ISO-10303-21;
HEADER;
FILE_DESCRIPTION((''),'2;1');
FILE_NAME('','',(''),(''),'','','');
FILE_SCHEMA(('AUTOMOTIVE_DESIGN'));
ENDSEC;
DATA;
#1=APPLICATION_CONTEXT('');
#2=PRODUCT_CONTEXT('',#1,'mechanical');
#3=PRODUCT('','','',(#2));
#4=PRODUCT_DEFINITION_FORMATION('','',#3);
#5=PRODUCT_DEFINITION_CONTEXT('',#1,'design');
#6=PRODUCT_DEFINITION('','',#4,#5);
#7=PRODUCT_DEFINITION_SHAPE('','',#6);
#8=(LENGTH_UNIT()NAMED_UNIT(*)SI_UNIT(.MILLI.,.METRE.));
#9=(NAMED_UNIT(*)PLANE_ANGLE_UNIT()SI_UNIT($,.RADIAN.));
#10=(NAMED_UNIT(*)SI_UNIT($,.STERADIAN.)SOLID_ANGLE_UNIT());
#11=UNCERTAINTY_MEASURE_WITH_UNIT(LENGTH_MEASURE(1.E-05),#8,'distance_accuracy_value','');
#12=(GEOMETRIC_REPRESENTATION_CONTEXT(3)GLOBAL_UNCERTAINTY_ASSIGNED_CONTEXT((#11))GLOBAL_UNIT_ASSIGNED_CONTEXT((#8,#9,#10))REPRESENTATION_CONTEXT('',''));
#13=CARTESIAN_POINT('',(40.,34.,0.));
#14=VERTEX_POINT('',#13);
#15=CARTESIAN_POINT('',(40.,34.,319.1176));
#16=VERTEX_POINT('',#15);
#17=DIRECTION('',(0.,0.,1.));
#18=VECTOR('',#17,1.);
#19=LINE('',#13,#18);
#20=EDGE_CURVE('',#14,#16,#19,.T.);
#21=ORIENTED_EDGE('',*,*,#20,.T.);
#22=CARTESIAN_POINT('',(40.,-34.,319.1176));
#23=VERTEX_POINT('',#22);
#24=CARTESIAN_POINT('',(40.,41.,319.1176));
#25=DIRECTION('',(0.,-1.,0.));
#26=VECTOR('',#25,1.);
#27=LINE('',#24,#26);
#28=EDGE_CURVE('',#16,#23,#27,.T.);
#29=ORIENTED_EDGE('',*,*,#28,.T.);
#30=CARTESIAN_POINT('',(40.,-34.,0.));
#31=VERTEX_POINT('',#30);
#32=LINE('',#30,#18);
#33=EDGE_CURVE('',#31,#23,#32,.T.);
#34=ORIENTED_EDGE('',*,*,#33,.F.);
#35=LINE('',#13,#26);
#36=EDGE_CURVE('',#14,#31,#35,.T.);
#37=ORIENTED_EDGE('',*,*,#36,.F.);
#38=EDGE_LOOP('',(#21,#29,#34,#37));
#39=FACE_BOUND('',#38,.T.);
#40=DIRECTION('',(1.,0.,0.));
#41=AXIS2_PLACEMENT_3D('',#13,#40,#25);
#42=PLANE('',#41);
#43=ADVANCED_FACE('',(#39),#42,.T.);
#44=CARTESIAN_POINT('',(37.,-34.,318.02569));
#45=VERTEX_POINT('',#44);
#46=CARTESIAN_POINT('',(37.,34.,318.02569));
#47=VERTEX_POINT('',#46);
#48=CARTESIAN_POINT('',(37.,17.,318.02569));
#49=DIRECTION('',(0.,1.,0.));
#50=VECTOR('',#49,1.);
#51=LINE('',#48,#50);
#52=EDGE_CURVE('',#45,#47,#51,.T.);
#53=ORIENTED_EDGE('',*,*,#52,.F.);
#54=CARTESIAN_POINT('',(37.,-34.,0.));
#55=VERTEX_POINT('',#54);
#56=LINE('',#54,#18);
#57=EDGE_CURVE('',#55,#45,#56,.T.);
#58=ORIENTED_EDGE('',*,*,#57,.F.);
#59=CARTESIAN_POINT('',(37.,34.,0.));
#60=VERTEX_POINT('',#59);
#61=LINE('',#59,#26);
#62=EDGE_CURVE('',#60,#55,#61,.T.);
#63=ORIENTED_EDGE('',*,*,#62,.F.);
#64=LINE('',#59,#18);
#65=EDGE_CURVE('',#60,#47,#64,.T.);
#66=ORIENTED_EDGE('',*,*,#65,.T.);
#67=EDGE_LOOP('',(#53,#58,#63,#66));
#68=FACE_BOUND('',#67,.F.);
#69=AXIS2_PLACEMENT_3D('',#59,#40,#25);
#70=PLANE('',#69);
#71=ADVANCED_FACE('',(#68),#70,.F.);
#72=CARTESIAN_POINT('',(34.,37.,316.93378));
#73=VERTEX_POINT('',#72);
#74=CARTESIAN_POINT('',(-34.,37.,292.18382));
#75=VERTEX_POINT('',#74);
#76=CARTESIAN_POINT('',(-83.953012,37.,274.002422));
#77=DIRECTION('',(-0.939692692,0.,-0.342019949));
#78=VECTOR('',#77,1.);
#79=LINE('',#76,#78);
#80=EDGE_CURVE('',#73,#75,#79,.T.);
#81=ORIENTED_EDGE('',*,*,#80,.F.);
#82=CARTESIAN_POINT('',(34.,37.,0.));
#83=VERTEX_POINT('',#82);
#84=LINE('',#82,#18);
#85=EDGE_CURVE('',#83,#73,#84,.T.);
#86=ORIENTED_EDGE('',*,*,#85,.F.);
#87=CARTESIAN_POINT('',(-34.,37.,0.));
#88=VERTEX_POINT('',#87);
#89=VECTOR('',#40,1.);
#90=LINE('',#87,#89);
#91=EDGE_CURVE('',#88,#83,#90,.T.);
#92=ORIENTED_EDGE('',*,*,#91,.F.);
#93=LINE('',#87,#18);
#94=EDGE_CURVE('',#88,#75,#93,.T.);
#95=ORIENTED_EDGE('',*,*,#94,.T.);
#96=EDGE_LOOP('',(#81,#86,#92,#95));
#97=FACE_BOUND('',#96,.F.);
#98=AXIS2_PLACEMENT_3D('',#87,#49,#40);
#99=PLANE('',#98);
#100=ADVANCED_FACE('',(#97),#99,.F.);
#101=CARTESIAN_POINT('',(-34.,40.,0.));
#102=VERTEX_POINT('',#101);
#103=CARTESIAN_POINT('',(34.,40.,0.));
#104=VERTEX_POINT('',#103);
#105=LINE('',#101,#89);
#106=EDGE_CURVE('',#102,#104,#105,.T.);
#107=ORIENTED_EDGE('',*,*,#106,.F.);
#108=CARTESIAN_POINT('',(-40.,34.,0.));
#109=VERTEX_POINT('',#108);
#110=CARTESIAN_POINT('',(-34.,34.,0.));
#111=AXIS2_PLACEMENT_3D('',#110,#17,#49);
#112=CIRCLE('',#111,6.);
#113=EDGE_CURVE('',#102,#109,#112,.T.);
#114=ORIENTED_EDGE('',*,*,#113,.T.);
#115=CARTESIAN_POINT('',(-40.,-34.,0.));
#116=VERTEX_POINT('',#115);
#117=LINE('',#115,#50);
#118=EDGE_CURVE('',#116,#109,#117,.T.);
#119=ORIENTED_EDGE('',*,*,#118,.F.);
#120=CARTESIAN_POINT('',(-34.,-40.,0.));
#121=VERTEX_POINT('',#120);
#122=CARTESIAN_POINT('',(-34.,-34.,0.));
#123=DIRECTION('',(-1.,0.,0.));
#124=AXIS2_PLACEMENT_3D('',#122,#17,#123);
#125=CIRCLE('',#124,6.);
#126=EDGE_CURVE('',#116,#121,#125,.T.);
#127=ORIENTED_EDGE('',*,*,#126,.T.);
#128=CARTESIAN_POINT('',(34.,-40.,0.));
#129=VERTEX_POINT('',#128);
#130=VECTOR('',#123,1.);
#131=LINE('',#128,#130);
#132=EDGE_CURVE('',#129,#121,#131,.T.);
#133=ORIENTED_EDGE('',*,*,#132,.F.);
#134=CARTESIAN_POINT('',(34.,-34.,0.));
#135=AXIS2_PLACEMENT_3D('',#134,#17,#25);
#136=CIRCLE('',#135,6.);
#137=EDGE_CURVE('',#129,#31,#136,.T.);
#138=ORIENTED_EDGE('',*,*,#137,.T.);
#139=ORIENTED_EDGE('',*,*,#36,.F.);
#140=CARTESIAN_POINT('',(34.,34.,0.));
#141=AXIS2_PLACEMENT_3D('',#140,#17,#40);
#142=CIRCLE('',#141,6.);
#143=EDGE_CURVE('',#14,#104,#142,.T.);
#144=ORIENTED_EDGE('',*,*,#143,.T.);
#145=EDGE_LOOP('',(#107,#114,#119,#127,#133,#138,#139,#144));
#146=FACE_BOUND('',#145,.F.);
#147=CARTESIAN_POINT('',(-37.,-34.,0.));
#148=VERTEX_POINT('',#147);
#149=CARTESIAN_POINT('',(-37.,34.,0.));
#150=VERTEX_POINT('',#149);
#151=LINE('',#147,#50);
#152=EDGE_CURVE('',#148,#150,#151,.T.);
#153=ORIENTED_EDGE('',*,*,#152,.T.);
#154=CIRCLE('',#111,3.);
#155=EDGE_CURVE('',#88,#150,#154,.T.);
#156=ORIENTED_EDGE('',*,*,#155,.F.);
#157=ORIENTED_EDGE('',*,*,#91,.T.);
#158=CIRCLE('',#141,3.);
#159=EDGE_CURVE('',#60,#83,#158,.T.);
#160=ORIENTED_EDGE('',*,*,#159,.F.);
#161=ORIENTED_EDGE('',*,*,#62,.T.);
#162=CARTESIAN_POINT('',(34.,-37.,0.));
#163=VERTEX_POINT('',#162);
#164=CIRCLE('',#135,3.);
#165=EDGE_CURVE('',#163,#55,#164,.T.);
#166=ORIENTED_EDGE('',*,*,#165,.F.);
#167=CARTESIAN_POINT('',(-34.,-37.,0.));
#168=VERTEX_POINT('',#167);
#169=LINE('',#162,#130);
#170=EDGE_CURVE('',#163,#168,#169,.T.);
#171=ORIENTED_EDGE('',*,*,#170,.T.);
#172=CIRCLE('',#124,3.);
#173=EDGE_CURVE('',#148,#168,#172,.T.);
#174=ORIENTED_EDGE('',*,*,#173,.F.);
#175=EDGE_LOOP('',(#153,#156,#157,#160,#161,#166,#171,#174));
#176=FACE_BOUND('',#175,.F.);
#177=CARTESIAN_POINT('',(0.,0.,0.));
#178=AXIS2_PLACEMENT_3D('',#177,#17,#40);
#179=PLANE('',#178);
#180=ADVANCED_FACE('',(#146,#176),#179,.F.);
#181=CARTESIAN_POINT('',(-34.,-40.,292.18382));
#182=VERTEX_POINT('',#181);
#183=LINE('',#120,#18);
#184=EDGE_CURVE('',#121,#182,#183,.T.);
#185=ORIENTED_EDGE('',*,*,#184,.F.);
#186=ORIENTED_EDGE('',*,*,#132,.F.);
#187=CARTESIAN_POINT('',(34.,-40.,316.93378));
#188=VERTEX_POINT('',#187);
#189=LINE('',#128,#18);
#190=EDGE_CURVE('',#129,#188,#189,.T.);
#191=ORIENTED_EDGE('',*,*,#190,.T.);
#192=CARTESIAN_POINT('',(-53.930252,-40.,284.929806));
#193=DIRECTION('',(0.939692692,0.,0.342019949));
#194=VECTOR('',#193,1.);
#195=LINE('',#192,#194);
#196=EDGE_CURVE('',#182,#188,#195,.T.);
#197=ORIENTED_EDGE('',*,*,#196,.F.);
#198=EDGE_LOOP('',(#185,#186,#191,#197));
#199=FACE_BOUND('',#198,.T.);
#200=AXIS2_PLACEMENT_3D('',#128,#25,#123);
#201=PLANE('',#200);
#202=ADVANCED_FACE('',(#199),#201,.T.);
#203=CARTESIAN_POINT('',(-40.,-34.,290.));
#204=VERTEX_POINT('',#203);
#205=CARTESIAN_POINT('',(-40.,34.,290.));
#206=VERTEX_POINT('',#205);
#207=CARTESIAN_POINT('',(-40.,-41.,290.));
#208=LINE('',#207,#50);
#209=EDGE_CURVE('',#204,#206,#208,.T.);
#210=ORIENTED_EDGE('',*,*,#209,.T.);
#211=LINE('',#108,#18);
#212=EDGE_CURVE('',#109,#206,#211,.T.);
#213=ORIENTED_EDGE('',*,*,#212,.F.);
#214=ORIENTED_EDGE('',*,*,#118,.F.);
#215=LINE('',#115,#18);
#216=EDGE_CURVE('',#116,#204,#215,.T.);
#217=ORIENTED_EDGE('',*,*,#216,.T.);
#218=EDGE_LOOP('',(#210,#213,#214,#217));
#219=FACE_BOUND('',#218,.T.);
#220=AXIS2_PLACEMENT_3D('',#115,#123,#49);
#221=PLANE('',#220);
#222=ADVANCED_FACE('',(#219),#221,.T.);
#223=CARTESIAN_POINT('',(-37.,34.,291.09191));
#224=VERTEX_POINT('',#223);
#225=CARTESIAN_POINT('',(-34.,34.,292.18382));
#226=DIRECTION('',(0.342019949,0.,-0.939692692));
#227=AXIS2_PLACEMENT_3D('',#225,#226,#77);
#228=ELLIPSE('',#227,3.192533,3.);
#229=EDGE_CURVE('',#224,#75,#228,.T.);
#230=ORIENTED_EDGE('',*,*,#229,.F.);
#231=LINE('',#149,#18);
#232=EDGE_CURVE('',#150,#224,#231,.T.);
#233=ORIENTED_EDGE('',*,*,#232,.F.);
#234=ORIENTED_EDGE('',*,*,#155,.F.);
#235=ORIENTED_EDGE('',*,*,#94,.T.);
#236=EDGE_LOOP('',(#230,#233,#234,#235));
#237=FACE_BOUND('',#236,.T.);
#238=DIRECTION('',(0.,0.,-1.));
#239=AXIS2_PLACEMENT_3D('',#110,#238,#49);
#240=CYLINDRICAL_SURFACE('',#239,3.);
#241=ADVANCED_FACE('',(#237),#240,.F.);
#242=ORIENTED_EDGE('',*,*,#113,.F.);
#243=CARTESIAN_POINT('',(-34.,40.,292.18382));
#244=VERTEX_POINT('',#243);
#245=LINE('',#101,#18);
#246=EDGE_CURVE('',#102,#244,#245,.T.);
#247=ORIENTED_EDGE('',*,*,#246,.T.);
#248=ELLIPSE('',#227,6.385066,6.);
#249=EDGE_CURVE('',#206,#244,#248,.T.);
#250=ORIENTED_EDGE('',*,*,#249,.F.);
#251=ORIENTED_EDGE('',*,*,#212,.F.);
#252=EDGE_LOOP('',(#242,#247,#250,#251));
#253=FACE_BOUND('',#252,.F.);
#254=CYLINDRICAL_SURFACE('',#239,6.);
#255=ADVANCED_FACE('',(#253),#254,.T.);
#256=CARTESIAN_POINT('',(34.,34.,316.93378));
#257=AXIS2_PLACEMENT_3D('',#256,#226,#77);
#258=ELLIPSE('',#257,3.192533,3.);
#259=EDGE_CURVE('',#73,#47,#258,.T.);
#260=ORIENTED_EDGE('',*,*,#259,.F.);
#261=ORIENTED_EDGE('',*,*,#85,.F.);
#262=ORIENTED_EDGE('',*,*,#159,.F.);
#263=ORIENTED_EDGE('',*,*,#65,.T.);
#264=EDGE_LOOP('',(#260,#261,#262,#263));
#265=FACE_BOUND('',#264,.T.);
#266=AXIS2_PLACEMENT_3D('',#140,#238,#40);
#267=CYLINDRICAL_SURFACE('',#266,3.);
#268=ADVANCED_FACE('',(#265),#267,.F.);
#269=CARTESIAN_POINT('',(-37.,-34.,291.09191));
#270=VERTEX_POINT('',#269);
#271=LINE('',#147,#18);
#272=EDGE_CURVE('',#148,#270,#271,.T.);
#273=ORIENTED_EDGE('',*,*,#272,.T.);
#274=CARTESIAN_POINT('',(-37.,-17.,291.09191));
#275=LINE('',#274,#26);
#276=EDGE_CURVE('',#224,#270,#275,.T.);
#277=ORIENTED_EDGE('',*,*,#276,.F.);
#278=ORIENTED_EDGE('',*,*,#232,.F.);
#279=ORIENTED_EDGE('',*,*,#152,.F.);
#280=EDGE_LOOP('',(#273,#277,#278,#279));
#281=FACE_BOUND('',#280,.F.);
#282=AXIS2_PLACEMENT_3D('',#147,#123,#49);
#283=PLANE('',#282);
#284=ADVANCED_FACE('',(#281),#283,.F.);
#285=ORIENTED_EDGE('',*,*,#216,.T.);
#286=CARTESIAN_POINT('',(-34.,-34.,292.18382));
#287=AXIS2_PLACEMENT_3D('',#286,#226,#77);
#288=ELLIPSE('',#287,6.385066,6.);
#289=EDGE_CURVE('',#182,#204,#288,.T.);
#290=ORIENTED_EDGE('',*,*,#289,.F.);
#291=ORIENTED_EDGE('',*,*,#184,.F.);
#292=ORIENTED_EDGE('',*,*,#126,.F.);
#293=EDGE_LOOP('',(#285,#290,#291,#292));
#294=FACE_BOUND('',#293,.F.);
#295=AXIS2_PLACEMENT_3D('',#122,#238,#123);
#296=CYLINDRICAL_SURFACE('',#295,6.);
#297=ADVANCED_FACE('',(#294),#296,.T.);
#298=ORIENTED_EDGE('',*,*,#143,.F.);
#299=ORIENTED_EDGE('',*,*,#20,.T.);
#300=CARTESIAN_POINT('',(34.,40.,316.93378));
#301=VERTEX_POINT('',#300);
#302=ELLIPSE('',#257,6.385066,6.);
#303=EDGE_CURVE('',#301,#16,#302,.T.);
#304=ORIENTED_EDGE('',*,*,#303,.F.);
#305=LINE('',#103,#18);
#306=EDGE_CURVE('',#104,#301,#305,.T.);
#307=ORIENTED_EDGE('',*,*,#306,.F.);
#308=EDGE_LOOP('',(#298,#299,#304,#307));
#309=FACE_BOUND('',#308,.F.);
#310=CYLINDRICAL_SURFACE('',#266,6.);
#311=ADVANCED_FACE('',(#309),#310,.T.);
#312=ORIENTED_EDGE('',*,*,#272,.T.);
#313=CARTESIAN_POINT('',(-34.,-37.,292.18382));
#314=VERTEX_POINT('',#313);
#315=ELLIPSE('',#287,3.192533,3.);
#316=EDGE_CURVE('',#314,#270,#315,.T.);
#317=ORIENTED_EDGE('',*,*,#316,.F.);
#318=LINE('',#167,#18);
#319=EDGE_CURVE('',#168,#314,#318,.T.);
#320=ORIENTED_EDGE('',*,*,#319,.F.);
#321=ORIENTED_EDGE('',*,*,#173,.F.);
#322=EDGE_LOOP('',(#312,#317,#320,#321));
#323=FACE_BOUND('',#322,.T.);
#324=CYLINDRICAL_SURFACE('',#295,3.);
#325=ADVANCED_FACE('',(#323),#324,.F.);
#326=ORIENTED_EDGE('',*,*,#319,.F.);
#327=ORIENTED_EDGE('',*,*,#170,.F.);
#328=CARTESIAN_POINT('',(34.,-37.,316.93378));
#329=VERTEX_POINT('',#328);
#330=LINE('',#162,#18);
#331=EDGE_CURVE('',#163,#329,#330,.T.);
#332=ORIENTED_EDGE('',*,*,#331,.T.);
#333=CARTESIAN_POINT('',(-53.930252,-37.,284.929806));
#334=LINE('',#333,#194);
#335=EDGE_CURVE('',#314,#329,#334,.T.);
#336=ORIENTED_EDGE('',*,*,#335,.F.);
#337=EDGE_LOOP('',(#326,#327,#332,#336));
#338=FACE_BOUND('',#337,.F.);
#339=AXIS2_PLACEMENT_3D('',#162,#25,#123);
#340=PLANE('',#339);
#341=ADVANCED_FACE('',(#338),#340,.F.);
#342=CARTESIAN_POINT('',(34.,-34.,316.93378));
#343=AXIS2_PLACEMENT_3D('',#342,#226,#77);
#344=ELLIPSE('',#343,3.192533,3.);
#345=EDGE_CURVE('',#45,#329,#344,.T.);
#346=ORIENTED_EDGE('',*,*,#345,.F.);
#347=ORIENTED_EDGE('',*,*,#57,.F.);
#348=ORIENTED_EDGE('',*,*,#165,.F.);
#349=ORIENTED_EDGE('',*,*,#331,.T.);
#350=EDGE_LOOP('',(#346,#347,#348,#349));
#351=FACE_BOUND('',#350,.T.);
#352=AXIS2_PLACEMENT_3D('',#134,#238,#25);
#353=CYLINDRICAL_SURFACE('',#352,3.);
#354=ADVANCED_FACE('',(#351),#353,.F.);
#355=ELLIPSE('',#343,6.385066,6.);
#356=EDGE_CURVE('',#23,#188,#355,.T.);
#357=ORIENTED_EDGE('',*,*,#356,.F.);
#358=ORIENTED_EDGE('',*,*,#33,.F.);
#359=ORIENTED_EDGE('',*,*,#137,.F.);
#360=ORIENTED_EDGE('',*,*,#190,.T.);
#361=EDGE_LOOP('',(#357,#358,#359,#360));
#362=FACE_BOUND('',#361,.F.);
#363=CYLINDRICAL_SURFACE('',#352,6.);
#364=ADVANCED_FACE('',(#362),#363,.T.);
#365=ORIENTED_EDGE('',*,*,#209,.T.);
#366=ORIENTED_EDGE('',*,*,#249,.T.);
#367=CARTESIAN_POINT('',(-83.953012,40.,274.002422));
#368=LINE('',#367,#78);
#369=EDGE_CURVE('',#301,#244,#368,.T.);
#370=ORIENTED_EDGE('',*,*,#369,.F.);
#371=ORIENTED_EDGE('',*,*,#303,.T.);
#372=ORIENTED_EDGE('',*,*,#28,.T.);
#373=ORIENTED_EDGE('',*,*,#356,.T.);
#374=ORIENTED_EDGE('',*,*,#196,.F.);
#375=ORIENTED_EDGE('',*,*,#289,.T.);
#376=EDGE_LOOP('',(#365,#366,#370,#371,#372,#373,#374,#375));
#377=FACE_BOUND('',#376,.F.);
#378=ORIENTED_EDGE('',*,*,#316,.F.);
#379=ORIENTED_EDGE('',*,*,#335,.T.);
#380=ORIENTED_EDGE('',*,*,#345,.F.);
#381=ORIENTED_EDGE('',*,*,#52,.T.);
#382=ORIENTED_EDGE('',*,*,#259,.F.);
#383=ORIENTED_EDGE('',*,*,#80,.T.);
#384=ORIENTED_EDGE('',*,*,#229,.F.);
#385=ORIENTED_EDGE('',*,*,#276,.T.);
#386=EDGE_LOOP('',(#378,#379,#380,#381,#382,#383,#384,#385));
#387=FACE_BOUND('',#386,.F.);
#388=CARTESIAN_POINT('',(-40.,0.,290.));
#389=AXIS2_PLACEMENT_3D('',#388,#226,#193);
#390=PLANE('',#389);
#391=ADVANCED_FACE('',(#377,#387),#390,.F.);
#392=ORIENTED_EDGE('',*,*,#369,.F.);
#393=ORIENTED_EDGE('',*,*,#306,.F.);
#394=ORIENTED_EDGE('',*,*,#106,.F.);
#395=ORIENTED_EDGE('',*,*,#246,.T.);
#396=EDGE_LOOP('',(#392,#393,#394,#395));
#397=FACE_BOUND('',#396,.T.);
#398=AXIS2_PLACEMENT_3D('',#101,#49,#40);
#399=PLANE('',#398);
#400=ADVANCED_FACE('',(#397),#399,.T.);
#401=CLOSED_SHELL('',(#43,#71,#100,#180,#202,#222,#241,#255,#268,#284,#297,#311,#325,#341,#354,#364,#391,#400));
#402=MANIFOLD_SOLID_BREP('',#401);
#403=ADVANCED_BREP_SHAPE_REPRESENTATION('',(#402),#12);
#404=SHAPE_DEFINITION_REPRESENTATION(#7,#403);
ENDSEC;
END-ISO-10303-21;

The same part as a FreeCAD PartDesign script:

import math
import FreeCAD as App
import Part
import Sketcher
from FreeCAD import Vector
Q = App.Units.Quantity


def add_polygon(sketch, points):
    """Adds a closed chain of lines whose ends are joined by coincident constraints."""
    first, n = sketch.GeometryCount, len(points)
    for a, b in zip(points, points[1:] + points[:1]):
        sketch.addGeometry(Part.LineSegment(App.Vector(*a, 0), App.Vector(*b, 0)), False)
    for i in range(n):
        sketch.addConstraint(Sketcher.Constraint("Coincident", first + i, 2, first + (i + 1) % n, 1))

doc = App.newDocument("Part")
params = doc.addObject("Spreadsheet::Sheet", "Params")
for row, (alias, value) in enumerate([
    ("sketch1_radius", "6 mm"),
    ("sketch1_radius2", "3 mm"),
    ("pad1_length", "1000 mm"),
    ("sketch2_width", "80 mm"),
    ("sketch2_height", "710 mm"),
], start=1):
    params.set(f"A{row}", alias)
    params.set(f"B{row}", "=" + value)
    params.setAlias(f"B{row}", alias)

body = doc.addObject("PartDesign::Body", "Body")

sketch1 = doc.addObject("Sketcher::SketchObject", "Sketch")
body.addObject(sketch1)
sketch1.AttachmentSupport = (doc.XY_Plane, [""])
sketch1.MapMode = "FlatFace"
sketch1.addGeometry([
    Part.LineSegment(Vector(-40, 34, 0), Vector(-40, -34, 0)),
    Part.ArcOfCircle(Part.Circle(Vector(-34, -34, 0), Vector(0, 0, 1), 6), math.radians(180), math.radians(270)),
    Part.LineSegment(Vector(-34, -40, 0), Vector(34, -40, 0)),
    Part.ArcOfCircle(Part.Circle(Vector(34, -34, 0), Vector(0, 0, 1), 6), math.radians(-90), math.radians(0)),
    Part.LineSegment(Vector(40, -34, 0), Vector(40, 34, 0)),
    Part.ArcOfCircle(Part.Circle(Vector(34, 34, 0), Vector(0, 0, 1), 6), math.radians(0), math.radians(90)),
    Part.LineSegment(Vector(34, 40, 0), Vector(-34, 40, 0)),
    Part.ArcOfCircle(Part.Circle(Vector(-34, 34, 0), Vector(0, 0, 1), 6), math.radians(90), math.radians(180)),
    Part.ArcOfCircle(Part.Circle(Vector(-34, 34, 0), Vector(0, 0, 1), 3), math.radians(90), math.radians(180)),
    Part.LineSegment(Vector(-34, 37, 0), Vector(34, 37, 0)),
    Part.ArcOfCircle(Part.Circle(Vector(34, 34, 0), Vector(0, 0, 1), 3), math.radians(0), math.radians(90)),
    Part.LineSegment(Vector(37, 34, 0), Vector(37, -34, 0)),
    Part.ArcOfCircle(Part.Circle(Vector(34, -34, 0), Vector(0, 0, 1), 3), math.radians(-90), math.radians(0)),
    Part.LineSegment(Vector(34, -37, 0), Vector(-34, -37, 0)),
    Part.ArcOfCircle(Part.Circle(Vector(-34, -34, 0), Vector(0, 0, 1), 3), math.radians(180), math.radians(270)),
    Part.LineSegment(Vector(-37, -34, 0), Vector(-37, 34, 0)),
], False)
sketch1.addConstraint([
    Sketcher.Constraint("Tangent", 0, 2, 1, 1),
    Sketcher.Constraint("Tangent", 1, 2, 2, 1),
    Sketcher.Constraint("Tangent", 2, 2, 3, 1),
    Sketcher.Constraint("Tangent", 3, 2, 4, 1),
    Sketcher.Constraint("Tangent", 4, 2, 5, 1),
    Sketcher.Constraint("Tangent", 5, 2, 6, 1),
    Sketcher.Constraint("Tangent", 6, 2, 7, 1),
    Sketcher.Constraint("Tangent", 7, 2, 0, 1),
    Sketcher.Constraint("Tangent", 8, 1, 9, 1),
    Sketcher.Constraint("Tangent", 9, 2, 10, 2),
    Sketcher.Constraint("Tangent", 10, 1, 11, 1),
    Sketcher.Constraint("Tangent", 11, 2, 12, 2),
    Sketcher.Constraint("Tangent", 12, 1, 13, 1),
    Sketcher.Constraint("Tangent", 13, 2, 14, 2),
    Sketcher.Constraint("Tangent", 14, 1, 15, 1),
    Sketcher.Constraint("Tangent", 15, 2, 8, 2),
    Sketcher.Constraint("Vertical", 0),
    Sketcher.Constraint("Horizontal", 2),
    Sketcher.Constraint("Vertical", 4),
    Sketcher.Constraint("Horizontal", 6),
    Sketcher.Constraint("Horizontal", 9),
    Sketcher.Constraint("Vertical", 11),
    Sketcher.Constraint("Horizontal", 13),
    Sketcher.Constraint("Vertical", 15),
    Sketcher.Constraint("Coincident", 8, 3, 7, 3),
    Sketcher.Constraint("Coincident", 10, 3, 5, 3),
    Sketcher.Constraint("Coincident", 12, 3, 3, 3),
    Sketcher.Constraint("Equal", 1, 3),
    Sketcher.Constraint("Equal", 3, 5),
    Sketcher.Constraint("Equal", 5, 7),
    Sketcher.Constraint("Equal", 12, 14),
    Sketcher.Constraint("Symmetric", 1, 3, 5, 3, -1, 1),
    Sketcher.Constraint("Equal", 13, 0),
    Sketcher.Constraint("Radius", 1, Q("6 mm")),
    Sketcher.Constraint("Radius", 8, Q("3 mm")),
    Sketcher.Constraint("DistanceX", 0, 2, -1, 1, Q("40 mm")),
])
sketch1.setExpression("Constraints[33]", "Params.sketch1_radius")
sketch1.setExpression("Constraints[34]", "Params.sketch1_radius2")
pad1 = doc.addObject("PartDesign::Pad", "Pad")
body.addObject(pad1)
pad1.Profile = sketch1
pad1.setExpression("Length", "Params.pad1_length")

sketch2 = doc.addObject("Sketcher::SketchObject", "Sketch001")
body.addObject(sketch2)
sketch2.AttachmentSupport = (doc.XZ_Plane, [""])
sketch2.MapMode = "FlatFace"
add_polygon(sketch2, [(40, 319), (-40, 290), (-40, 1000), (40, 1000)])
sketch2.addConstraint([
    Sketcher.Constraint("Vertical", 1),
    Sketcher.Constraint("Horizontal", 2),
    Sketcher.Constraint("Vertical", 3),
    Sketcher.Constraint("DistanceY", -1, 1, 0, 2, Q("290 mm")),
    Sketcher.Constraint("DistanceX", 2, 1, 2, 2, Q("80 mm")),
    Sketcher.Constraint("DistanceY", 1, 1, 1, 2, Q("710 mm")),
    Sketcher.Constraint("Angle", 0, Q("-160 deg")),
    Sketcher.Constraint("DistanceX", 0, 2, -1, 1, Q("40 mm")),
])
sketch2.setExpression("Constraints[8]", "Params.sketch2_width")
sketch2.setExpression("Constraints[9]", "Params.sketch2_height")
pocket1 = doc.addObject("PartDesign::Pocket", "Pocket")
body.addObject(pocket1)
pocket1.Profile = sketch2
pocket1.Type = "ThroughAll"
pocket1.Midplane = True

doc.recompute()
